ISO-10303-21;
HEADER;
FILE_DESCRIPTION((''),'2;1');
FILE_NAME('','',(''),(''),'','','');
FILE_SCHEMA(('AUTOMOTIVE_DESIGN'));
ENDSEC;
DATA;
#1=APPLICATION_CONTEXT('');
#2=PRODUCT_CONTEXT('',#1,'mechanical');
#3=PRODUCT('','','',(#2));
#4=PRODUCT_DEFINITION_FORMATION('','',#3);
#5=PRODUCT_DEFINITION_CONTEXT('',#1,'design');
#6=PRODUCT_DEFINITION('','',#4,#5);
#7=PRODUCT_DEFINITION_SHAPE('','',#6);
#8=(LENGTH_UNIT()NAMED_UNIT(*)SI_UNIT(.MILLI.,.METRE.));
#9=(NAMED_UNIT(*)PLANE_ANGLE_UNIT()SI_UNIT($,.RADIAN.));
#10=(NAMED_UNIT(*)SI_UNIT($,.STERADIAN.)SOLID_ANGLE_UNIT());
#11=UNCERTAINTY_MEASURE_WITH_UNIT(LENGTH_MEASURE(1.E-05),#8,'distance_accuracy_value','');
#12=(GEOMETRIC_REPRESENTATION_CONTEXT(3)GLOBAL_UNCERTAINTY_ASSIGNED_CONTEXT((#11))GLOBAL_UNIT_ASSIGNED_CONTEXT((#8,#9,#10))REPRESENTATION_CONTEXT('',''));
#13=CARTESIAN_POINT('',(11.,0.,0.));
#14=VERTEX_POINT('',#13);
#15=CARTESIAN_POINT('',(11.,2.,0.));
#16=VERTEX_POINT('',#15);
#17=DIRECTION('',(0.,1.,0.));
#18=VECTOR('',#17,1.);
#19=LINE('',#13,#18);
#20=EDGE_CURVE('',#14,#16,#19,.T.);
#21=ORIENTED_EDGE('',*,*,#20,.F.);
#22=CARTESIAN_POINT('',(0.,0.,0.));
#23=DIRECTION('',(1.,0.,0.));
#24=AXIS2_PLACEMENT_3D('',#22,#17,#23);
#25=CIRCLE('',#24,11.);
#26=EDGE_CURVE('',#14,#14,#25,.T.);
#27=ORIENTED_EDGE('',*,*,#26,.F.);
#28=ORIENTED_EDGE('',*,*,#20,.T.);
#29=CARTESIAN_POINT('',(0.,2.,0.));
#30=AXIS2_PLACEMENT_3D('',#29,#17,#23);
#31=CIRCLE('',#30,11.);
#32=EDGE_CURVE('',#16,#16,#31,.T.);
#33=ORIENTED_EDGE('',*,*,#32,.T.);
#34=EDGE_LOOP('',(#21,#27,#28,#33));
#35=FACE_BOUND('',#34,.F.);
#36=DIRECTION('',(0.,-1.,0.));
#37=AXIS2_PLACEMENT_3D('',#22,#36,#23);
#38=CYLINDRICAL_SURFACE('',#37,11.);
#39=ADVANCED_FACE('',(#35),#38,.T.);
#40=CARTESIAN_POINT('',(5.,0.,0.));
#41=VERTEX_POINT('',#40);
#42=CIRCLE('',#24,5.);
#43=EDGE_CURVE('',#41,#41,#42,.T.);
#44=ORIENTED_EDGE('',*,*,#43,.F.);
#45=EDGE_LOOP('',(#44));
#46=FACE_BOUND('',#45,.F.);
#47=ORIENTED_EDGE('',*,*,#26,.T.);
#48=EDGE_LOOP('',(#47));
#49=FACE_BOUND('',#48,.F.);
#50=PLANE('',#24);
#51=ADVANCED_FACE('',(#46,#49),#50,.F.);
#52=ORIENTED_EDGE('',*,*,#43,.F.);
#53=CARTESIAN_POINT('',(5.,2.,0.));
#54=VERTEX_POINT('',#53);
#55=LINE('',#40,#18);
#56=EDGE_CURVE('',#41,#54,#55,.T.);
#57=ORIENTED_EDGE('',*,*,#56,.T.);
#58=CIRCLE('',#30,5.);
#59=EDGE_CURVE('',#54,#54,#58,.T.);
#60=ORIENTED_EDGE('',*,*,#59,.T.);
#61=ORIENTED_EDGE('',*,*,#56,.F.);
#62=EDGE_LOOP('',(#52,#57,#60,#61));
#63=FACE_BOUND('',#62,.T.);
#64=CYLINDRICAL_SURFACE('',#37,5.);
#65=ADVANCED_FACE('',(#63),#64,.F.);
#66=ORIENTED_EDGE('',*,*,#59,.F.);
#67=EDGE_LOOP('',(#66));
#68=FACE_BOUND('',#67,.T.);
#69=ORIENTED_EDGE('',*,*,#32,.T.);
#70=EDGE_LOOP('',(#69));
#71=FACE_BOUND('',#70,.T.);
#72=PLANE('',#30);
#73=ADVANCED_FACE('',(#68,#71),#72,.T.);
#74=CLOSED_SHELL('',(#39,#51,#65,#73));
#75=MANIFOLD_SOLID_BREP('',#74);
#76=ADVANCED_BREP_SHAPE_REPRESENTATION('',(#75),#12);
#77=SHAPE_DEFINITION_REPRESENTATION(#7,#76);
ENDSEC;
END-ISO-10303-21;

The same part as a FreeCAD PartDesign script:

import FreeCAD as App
import Part
import Sketcher

V = App.Vector
Q = App.Units.Quantity

doc = App.newDocument("Part")
body = doc.addObject("PartDesign::Body", "Body")

sketch1 = body.newObject("Sketcher::SketchObject", "Sketch")
sketch1.AttachmentSupport = (doc.getObject("XZ_Plane"), [""])
sketch1.MapMode = "FlatFace"
sketch1.addGeometry([
    Part.Circle(V(0, 0, 0), V(0, 0, 1), 11),
    Part.Circle(V(0, 0, 0), V(0, 0, 1), 5),
], False)
sketch1.addConstraint([
    Sketcher.Constraint("Coincident", 0, 3, -1, 1),
    Sketcher.Constraint("Coincident", 1, 3, -1, 1),
    Sketcher.Constraint("Diameter", 0, Q("22 mm")),
    Sketcher.Constraint("Diameter", 1, Q("10 mm")),
])
pad1 = body.newObject("PartDesign::Pad", "Pad")
pad1.Profile = sketch1
pad1.Length = 2
pad1.Reversed = True

doc.recompute()
